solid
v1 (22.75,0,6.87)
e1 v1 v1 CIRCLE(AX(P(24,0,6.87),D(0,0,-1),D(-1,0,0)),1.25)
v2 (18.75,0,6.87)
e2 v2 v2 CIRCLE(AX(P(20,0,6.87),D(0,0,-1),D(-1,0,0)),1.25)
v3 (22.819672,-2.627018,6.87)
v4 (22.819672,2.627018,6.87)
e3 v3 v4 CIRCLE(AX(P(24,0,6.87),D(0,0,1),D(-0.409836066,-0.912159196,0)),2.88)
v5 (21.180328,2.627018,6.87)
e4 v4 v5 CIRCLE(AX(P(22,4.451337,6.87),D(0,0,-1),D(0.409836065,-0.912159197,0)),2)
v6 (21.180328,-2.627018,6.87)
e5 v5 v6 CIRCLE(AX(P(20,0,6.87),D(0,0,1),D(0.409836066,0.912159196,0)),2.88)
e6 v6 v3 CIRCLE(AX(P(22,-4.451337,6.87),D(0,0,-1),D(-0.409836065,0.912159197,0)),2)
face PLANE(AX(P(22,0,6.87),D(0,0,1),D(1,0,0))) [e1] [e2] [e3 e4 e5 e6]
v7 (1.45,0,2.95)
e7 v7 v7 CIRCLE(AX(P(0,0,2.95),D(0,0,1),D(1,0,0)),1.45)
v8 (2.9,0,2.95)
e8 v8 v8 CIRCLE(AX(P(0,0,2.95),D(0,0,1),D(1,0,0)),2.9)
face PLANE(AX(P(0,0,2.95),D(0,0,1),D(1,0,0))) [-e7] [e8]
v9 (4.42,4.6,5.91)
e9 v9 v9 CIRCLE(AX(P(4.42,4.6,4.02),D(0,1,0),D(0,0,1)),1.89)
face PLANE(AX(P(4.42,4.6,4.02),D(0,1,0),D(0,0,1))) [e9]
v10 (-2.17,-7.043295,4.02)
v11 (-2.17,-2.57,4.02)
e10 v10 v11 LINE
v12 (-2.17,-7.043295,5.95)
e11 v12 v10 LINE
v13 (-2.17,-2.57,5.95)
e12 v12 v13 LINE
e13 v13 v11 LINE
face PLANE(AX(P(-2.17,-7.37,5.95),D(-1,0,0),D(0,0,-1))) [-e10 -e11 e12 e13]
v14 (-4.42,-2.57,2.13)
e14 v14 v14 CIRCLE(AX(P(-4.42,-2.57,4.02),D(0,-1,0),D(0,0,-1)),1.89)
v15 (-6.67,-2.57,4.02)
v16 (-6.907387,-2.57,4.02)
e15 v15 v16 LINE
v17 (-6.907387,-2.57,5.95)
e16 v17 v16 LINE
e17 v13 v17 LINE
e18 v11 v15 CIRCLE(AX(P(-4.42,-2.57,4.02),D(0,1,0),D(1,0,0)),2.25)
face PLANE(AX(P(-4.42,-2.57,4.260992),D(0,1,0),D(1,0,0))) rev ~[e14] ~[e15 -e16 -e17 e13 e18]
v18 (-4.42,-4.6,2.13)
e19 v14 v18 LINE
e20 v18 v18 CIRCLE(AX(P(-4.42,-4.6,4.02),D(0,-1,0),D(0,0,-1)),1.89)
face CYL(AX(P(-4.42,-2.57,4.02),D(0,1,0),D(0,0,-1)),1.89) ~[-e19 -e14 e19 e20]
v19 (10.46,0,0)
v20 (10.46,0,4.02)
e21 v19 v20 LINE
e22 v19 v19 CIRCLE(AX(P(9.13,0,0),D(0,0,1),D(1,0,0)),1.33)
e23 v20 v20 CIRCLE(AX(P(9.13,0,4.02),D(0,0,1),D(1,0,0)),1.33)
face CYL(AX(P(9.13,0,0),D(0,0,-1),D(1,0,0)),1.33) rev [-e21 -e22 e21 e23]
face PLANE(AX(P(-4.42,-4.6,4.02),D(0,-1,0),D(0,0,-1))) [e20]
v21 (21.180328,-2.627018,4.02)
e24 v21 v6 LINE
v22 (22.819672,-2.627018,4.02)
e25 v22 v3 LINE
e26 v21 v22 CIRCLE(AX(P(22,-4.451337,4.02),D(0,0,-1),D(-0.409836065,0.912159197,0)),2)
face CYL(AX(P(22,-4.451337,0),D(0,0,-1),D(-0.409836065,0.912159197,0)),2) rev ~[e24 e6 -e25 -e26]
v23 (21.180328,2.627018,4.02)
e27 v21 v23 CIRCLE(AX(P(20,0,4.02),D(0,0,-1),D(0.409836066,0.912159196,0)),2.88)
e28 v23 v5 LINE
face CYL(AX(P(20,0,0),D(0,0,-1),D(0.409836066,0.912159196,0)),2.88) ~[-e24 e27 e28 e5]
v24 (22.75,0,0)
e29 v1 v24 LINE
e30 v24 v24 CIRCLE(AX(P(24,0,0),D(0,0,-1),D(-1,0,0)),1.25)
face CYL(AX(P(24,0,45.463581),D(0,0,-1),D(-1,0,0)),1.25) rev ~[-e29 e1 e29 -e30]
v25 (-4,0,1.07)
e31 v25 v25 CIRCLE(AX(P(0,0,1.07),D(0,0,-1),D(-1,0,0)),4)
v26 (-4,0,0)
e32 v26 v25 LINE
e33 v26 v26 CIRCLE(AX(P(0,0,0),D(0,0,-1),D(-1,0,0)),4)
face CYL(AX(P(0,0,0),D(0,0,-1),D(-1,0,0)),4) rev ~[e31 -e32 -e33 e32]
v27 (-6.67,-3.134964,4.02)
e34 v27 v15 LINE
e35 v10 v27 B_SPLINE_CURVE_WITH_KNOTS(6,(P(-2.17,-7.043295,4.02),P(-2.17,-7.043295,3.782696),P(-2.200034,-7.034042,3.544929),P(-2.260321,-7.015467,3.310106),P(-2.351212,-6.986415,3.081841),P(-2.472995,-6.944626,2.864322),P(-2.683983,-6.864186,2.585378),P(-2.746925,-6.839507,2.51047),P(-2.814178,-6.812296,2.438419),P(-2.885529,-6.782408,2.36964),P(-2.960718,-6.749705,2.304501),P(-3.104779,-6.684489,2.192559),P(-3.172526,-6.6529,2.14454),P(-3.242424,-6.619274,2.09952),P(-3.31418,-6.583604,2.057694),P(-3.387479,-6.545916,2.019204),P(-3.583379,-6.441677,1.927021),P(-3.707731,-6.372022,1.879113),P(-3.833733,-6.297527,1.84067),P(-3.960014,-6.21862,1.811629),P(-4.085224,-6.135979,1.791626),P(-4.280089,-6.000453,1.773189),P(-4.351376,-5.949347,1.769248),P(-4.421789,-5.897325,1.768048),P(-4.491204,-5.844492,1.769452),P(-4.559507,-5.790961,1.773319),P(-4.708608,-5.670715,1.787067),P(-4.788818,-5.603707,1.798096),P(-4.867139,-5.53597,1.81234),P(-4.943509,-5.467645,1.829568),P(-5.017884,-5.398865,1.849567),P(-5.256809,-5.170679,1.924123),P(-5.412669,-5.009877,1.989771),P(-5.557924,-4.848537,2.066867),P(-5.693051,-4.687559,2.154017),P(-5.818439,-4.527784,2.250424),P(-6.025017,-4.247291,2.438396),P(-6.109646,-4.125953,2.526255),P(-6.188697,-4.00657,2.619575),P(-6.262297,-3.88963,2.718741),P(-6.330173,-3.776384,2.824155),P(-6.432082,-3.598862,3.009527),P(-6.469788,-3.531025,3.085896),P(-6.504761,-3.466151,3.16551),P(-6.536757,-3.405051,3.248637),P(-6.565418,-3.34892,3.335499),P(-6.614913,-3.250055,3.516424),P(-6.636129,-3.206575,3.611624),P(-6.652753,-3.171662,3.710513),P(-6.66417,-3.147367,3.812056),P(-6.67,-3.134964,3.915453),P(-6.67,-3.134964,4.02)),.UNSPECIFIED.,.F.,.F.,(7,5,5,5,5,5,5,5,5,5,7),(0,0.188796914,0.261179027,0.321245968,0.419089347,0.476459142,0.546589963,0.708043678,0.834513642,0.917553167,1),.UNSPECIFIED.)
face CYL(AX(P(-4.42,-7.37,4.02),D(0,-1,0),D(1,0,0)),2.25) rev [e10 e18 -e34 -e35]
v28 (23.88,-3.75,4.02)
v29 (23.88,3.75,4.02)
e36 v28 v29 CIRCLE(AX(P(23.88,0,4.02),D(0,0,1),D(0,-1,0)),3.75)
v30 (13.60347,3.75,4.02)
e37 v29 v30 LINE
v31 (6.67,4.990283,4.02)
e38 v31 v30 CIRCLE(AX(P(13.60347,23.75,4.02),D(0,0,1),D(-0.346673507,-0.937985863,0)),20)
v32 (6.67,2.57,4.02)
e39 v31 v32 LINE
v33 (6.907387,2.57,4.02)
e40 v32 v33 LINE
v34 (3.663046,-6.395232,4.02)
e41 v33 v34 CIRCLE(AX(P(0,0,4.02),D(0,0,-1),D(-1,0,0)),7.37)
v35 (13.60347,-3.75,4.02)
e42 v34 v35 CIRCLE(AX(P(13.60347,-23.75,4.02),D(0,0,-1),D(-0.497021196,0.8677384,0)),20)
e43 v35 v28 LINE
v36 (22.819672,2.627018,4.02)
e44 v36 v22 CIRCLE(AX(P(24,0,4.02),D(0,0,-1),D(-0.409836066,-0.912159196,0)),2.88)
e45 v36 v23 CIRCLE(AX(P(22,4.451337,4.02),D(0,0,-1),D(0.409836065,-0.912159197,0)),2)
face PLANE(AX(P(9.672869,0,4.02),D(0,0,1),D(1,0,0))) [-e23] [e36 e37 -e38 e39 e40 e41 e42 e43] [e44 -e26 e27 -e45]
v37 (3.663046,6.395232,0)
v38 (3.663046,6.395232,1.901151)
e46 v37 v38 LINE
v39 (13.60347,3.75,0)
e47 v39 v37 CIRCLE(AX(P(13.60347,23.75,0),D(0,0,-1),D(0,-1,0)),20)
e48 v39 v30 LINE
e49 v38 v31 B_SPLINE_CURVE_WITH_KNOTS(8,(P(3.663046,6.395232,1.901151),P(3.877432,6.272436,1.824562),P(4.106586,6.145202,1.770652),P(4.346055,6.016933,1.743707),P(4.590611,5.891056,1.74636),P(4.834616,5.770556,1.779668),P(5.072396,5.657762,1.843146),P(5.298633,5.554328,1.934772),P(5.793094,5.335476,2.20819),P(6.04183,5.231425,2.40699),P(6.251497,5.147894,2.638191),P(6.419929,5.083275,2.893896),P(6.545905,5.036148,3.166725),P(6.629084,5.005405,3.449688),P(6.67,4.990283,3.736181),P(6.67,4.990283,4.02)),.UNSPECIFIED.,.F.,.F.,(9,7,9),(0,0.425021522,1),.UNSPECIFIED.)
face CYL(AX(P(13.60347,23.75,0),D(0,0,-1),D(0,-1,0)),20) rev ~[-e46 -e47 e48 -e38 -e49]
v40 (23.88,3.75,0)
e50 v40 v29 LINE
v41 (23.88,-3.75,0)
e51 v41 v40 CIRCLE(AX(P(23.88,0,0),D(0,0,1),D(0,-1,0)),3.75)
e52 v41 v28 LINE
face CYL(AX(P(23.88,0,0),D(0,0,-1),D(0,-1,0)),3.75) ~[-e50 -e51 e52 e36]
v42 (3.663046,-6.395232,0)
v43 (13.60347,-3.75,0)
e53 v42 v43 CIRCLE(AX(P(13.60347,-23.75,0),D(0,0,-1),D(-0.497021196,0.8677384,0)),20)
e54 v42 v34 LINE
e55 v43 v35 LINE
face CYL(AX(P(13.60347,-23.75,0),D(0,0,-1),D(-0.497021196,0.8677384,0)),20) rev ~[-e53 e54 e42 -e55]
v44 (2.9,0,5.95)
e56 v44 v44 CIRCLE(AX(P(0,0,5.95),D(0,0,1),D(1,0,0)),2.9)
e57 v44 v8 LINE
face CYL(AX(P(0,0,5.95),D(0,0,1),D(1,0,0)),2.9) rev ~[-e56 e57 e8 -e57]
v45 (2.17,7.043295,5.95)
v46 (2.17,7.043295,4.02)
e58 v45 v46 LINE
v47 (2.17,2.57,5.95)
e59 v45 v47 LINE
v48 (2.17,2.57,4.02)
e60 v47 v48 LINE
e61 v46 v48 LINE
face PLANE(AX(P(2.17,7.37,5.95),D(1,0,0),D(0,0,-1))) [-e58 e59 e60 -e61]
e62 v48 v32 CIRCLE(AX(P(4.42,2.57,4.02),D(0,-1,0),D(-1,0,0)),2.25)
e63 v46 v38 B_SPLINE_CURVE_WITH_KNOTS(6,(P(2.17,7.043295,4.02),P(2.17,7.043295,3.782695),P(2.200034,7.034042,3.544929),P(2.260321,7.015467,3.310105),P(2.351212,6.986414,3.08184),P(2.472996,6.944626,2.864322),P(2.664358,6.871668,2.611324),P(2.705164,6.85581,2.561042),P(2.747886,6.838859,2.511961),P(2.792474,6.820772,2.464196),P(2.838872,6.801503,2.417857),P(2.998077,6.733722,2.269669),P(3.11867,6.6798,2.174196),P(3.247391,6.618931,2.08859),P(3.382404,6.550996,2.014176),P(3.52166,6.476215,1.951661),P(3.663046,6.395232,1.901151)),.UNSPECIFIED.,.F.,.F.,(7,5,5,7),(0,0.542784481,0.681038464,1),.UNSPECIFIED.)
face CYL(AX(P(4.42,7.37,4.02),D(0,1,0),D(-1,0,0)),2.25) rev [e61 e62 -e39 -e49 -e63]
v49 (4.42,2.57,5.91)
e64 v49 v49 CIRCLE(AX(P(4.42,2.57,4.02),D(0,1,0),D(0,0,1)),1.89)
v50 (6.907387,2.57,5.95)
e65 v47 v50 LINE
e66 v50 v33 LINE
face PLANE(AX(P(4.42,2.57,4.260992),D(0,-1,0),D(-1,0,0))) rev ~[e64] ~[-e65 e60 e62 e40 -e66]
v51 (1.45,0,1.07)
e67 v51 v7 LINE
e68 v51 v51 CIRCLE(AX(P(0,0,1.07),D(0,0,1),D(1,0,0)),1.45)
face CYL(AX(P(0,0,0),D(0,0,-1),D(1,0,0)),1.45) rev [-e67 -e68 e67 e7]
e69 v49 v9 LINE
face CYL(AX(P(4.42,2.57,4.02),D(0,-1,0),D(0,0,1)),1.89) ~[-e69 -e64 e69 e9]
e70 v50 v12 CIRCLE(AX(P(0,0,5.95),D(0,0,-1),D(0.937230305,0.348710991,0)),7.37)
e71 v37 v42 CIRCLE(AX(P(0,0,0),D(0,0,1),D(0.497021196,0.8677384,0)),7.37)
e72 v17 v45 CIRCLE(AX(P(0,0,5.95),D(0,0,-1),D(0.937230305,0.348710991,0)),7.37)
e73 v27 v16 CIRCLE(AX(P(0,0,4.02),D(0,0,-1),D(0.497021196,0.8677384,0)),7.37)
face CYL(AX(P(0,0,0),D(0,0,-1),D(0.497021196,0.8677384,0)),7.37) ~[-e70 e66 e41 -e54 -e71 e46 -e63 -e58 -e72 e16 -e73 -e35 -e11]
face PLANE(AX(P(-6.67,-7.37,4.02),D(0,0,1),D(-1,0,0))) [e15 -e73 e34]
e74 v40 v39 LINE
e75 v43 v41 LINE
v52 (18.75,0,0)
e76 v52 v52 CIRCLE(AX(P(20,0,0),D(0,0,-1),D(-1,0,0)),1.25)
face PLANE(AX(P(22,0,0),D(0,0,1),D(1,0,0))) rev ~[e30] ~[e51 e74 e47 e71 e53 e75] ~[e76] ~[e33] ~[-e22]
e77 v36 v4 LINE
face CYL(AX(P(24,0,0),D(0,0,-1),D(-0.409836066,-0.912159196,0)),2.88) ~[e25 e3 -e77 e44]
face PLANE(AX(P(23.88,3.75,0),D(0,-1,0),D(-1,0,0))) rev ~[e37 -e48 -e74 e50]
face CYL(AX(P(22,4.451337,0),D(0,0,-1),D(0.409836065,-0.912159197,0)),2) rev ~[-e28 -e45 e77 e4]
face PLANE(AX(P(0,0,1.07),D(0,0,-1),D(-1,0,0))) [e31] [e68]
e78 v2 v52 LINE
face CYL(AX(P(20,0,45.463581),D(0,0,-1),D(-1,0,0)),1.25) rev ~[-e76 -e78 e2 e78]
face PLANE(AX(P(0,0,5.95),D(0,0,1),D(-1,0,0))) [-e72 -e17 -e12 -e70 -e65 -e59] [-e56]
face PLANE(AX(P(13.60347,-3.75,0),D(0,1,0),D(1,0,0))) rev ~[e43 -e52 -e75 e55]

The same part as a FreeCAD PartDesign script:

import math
import FreeCAD as App
import Part
import Sketcher

V = App.Vector
Q = App.Units.Quantity

doc = App.newDocument("Part")
body = doc.addObject("PartDesign::Body", "Body")

# Sketch on XY plane
sketch1 = body.newObject("Sketcher::SketchObject", "Sketch")
sketch1.AttachmentSupport = (doc.getObject("XY_Plane"), [""])
sketch1.MapMode = "FlatFace"
sketch1.addGeometry(Part.LineSegment(V(13.60347, -3.75, 0), V(23.88, -3.75, 0)), False)
sketch1.addGeometry(Part.ArcOfCircle(Part.Circle(V(23.88, 0, 0), V(0, 0, 1), 3.75), math.radians(-90), math.radians(90)), False)
sketch1.addGeometry(Part.LineSegment(V(23.88, 3.75, 0), V(13.60347, 3.75, 0)), False)
sketch1.addGeometry(Part.ArcOfCircle(Part.Circle(V(13.60347, 23.75, 0), V(0, 0, 1), 20), math.radians(-119.803119), math.radians(-90)), False)
sketch1.addGeometry(Part.ArcOfCircle(Part.Circle(V(0, 0, 0), V(0, 0, 1), 7.37), math.radians(60.196881), math.radians(299.803119)), False)
sketch1.addGeometry(Part.ArcOfCircle(Part.Circle(V(13.60347, -23.75, 0), V(0, 0, 1), 20), math.radians(90), math.radians(119.803119)), False)
sketch1.addGeometry(Part.Circle(V(0, 0, 0), V(0, 0, 1), 1.45), False)
sketch1.addGeometry(Part.Circle(V(9.13, 0, 0), V(0, 0, 1), 1.33), False)
sketch1.addConstraint(Sketcher.Constraint("Tangent", 0, 2, 1, 1))
sketch1.addConstraint(Sketcher.Constraint("Tangent", 1, 2, 2, 1))
sketch1.addConstraint(Sketcher.Constraint("Tangent", 2, 2, 3, 2))
sketch1.addConstraint(Sketcher.Constraint("Tangent", 3, 1, 4, 1))
sketch1.addConstraint(Sketcher.Constraint("Tangent", 4, 2, 5, 2))
sketch1.addConstraint(Sketcher.Constraint("Tangent", 5, 1, 0, 1))
sketch1.addConstraint(Sketcher.Constraint("Horizontal", 0))
sketch1.addConstraint(Sketcher.Constraint("Horizontal", 2))
sketch1.addConstraint(Sketcher.Constraint("Coincident", 4, 3, -1, 1))
sketch1.addConstraint(Sketcher.Constraint("Coincident", 6, 3, -1, 1))
sketch1.addConstraint(Sketcher.Constraint("Equal", 3, 5))
sketch1.addConstraint(Sketcher.Constraint("PointOnObject", 1, 3, -1))
sketch1.addConstraint(Sketcher.Constraint("PointOnObject", 7, 3, -1))
sketch1.addConstraint(Sketcher.Constraint("Radius", 3, Q("20 mm")))
sketch1.addConstraint(Sketcher.Constraint("Diameter", 6, Q("2.9 mm")))
sketch1.addConstraint(Sketcher.Constraint("Diameter", 7, Q("2.66 mm")))
sketch1.addConstraint(Sketcher.Constraint("Radius", 1, Q("3.75 mm")))
sketch1.addConstraint(Sketcher.Constraint("Radius", 4, Q("7.37 mm")))
sketch1.addConstraint(Sketcher.Constraint("DistanceX", -1, 1, 1, 3, Q("23.88 mm")))
sketch1.addConstraint(Sketcher.Constraint("DistanceX", -1, 1, 7, 3, Q("9.13 mm")))
pad1 = body.newObject("PartDesign::Pad", "Pad")
pad1.Profile = sketch1
pad1.Length = 4.02

# Sketch on XY plane
sketch2 = body.newObject("Sketcher::SketchObject", "Sketch001")
sketch2.AttachmentSupport = (doc.getObject("XY_Plane"), [""])
sketch2.MapMode = "FlatFace"
sketch2.addGeometry(Part.Circle(V(0, 0, 0), V(0, 0, 1), 7.37), False)
sketch2.addGeometry(Part.Circle(V(0, 0, 0), V(0, 0, 1), 1.45), False)
sketch2.addConstraint(Sketcher.Constraint("Coincident", 0, 3, -1, 1))
sketch2.addConstraint(Sketcher.Constraint("Coincident", 1, 3, -1, 1))
sketch2.addConstraint(Sketcher.Constraint("Diameter", 1, Q("2.9 mm")))
sketch2.addConstraint(Sketcher.Constraint("Diameter", 0, Q("14.74 mm")))
pad2 = body.newObject("PartDesign::Pad", "Pad001")
pad2.Profile = sketch2
pad2.Length = 5.95

# Sketch on XY plane
sketch3 = body.newObject("Sketcher::SketchObject", "Sketch002")
sketch3.AttachmentSupport = (doc.getObject("XY_Plane"), [""])
sketch3.MapMode = "FlatFace"
sketch3.addGeometry(Part.ArcOfCircle(Part.Circle(V(24, 0, 0), V(0, 0, 1), 2.88), math.radians(-114.194537), math.radians(114.194537)), False)
sketch3.addGeometry(Part.ArcOfCircle(Part.Circle(V(22, 4.451337, 0), V(0, 0, 1), 2), math.radians(-114.194537), math.radians(-65.805463)), False)
sketch3.addGeometry(Part.ArcOfCircle(Part.Circle(V(20, 0, 0), V(0, 0, 1), 2.88), math.radians(65.805463), math.radians(294.194537)), False)
sketch3.addGeometry(Part.ArcOfCircle(Part.Circle(V(22, -4.451337, 0), V(0, 0, 1), 2), math.radians(65.805463), math.radians(114.194537)), False)
sketch3.addConstraint(Sketcher.Constraint("Tangent", 0, 2, 1, 2))
sketch3.addConstraint(Sketcher.Constraint("Tangent", 1, 1, 2, 1))
sketch3.addConstraint(Sketcher.Constraint("Tangent", 2, 2, 3, 2))
sketch3.addConstraint(Sketcher.Constraint("Tangent", 3, 1, 0, 1))
sketch3.addConstraint(Sketcher.Constraint("Equal", 0, 2))
sketch3.addConstraint(Sketcher.Constraint("Equal", 1, 3))
sketch3.addConstraint(Sketcher.Constraint("Symmetric", 1, 3, 3, 3, -1))
sketch3.addConstraint(Sketcher.Constraint("Radius", 1, Q("2 mm")))
sketch3.addConstraint(Sketcher.Constraint("Radius", 0, Q("2.88 mm")))
sketch3.addConstraint(Sketcher.Constraint("DistanceX", -1, 1, 0, 3, Q("24 mm")))
sketch3.addConstraint(Sketcher.Constraint("DistanceX", -1, 1, 1, 3, Q("22 mm")))
pad3 = body.newObject("PartDesign::Pad", "Pad002")
pad3.Profile = sketch3
pad3.Length = 6.87

# Sketch on XY plane
sketch4 = body.newObject("Sketcher::SketchObject", "Sketch003")
sketch4.AttachmentSupport = (doc.getObject("XY_Plane"), [""])
sketch4.MapMode = "FlatFace"
sketch4.AttachmentOffset = App.Placement(V(0, 0, 6.87), App.Rotation())
sketch4.addGeometry(Part.Circle(V(24, 0, 0), V(0, 0, 1), 1.25), False)
sketch4.addGeometry(Part.Circle(V(20, 0, 0), V(0, 0, 1), 1.25), False)
sketch4.addConstraint(Sketcher.Constraint("Equal", 0, 1))
sketch4.addConstraint(Sketcher.Constraint("PointOnObject", 0, 3, -1))
sketch4.addConstraint(Sketcher.Constraint("PointOnObject", 1, 3, -1))
sketch4.addConstraint(Sketcher.Constraint("Diameter", 0, Q("2.5 mm")))
sketch4.addConstraint(Sketcher.Constraint("DistanceX", -1, 1, 0, 3, Q("24 mm")))
sketch4.addConstraint(Sketcher.Constraint("DistanceX", -1, 1, 1, 3, Q("20 mm")))
doc.recompute()
hole = body.newObject("PartDesign::Hole", "Hole")
hole.Profile = sketch4
hole.ThreadType = "None"
hole.Diameter = 2.5
hole.DepthType = "ThroughAll"

# Sketch on XY plane
sketch5 = body.newObject("Sketcher::SketchObject", "Sketch004")
sketch5.AttachmentSupport = (doc.getObject("XY_Plane"), [""])
sketch5.MapMode = "FlatFace"
sketch5.addGeometry(Part.Circle(V(0, 0, 0), V(0, 0, 1), 4), False)
sketch5.addConstraint(Sketcher.Constraint("Coincident", 0, 3, -1, 1))
sketch5.addConstraint(Sketcher.Constraint("Diameter", 0, Q("8 mm")))
pocket1 = body.newObject("PartDesign::Pocket", "Pocket")
pocket1.Profile = sketch5
pocket1.Length = 1.07
pocket1.Reversed = True

# Sketch on XY plane
sketch6 = body.newObject("Sketcher::SketchObject", "Sketch005")
sketch6.AttachmentSupport = (doc.getObject("XY_Plane"), [""])
sketch6.MapMode = "FlatFace"
sketch6.AttachmentOffset = App.Placement(V(0, 0, 5.95), App.Rotation())
sketch6.addGeometry(Part.Circle(V(0, 0, 0), V(0, 0, 1), 2.9), False)
sketch6.addConstraint(Sketcher.Constraint("Coincident", 0, 3, -1, 1))
sketch6.addConstraint(Sketcher.Constraint("Diameter", 0, Q("5.8 mm")))
pocket2 = body.newObject("PartDesign::Pocket", "Pocket001")
pocket2.Profile = sketch6
pocket2.Length = 3

# Sketch on XZ plane
sketch7 = body.newObject("Sketcher::SketchObject", "Sketch006")
sketch7.AttachmentSupport = (doc.getObject("XZ_Plane"), [""])
sketch7.MapMode = "FlatFace"
sketch7.AttachmentOffset = App.Placement(V(0, 0, -7.37), App.Rotation())
sketch7.addGeometry(Part.ArcOfCircle(Part.Circle(V(4.42, 4.02, 0), V(0, 0, 1), 2.25), math.radians(180), math.radians(360)), False)
sketch7.addGeometry(Part.LineSegment(V(2.17, 4.02, 0), V(2.17, 5.95, 0)), False)
sketch7.addGeometry(Part.LineSegment(V(2.17, 5.95, 0), V(7.37, 5.95, 0)), False)
sketch7.addGeometry(Part.LineSegment(V(7.37, 5.95, 0), V(7.37, 4.02, 0)), False)
sketch7.addGeometry(Part.LineSegment(V(7.37, 4.02, 0), V(6.67, 4.02, 0)), False)
sketch7.addConstraint(Sketcher.Constraint("Tangent", 0, 1, 1, 1))
sketch7.addConstraint(Sketcher.Constraint("Coincident", 1, 2, 2, 1))
sketch7.addConstraint(Sketcher.Constraint("Coincident", 2, 2, 3, 1))
sketch7.addConstraint(Sketcher.Constraint("Coincident", 3, 2, 4, 1))
sketch7.addConstraint(Sketcher.Constraint("Coincident", 4, 2, 0, 2))
sketch7.addConstraint(Sketcher.Constraint("Vertical", 1))
sketch7.addConstraint(Sketcher.Constraint("Horizontal", 2))
sketch7.addConstraint(Sketcher.Constraint("Vertical", 3))
sketch7.addConstraint(Sketcher.Constraint("Horizontal", 4))
sketch7.addConstraint(Sketcher.Constraint("Horizontal", 0, 1, 3, 2))
sketch7.addConstraint(Sketcher.Constraint("Radius", 0, Q("2.25 mm")))
sketch7.addConstraint(Sketcher.Constraint("DistanceX", 2, 1, 2, 2, Q("5.2 mm")))
sketch7.addConstraint(Sketcher.Constraint("DistanceY", 1, 1, 1, 2, Q("1.93 mm")))
sketch7.addConstraint(Sketcher.Constraint("DistanceX", -1, 1, 0, 3, Q("4.42 mm")))
sketch7.addConstraint(Sketcher.Constraint("DistanceY", -1, 1, 0, 3, Q("4.02 mm")))
pocket3 = body.newObject("PartDesign::Pocket", "Pocket002")
pocket3.Profile = sketch7
pocket3.Length = 4.8
pocket3.Reversed = True

# Sketch on XZ plane
sketch8 = body.newObject("Sketcher::SketchObject", "Sketch007")
sketch8.AttachmentSupport = (doc.getObject("XZ_Plane"), [""])
sketch8.MapMode = "FlatFace"
sketch8.AttachmentOffset = App.Placement(V(0, 0, 7.37), App.Rotation())
sketch8.addGeometry(Part.ArcOfCircle(Part.Circle(V(-4.42, 4.02, 0), V(0, 0, 1), 2.25), math.radians(180), math.radians(360)), False)
sketch8.addGeometry(Part.LineSegment(V(-2.17, 4.02, 0), V(-2.17, 5.95, 0)), False)
sketch8.addGeometry(Part.LineSegment(V(-2.17, 5.95, 0), V(-7.37, 5.95, 0)), False)
sketch8.addGeometry(Part.LineSegment(V(-7.37, 5.95, 0), V(-7.37, 4.02, 0)), False)
sketch8.addGeometry(Part.LineSegment(V(-7.37, 4.02, 0), V(-6.67, 4.02, 0)), False)
sketch8.addConstraint(Sketcher.Constraint("Tangent", 0, 2, 1, 1))
sketch8.addConstraint(Sketcher.Constraint("Coincident", 1, 2, 2, 1))
sketch8.addConstraint(Sketcher.Constraint("Coincident", 2, 2, 3, 1))
sketch8.addConstraint(Sketcher.Constraint("Coincident", 3, 2, 4, 1))
sketch8.addConstraint(Sketcher.Constraint("Coincident", 4, 2, 0, 1))
sketch8.addConstraint(Sketcher.Constraint("Vertical", 1))
sketch8.addConstraint(Sketcher.Constraint("Horizontal", 2))
sketch8.addConstraint(Sketcher.Constraint("Vertical", 3))
sketch8.addConstraint(Sketcher.Constraint("Horizontal", 4))
sketch8.addConstraint(Sketcher.Constraint("Horizontal", 0, 2, 3, 2))
sketch8.addConstraint(Sketcher.Constraint("Radius", 0, Q("2.25 mm")))
sketch8.addConstraint(Sketcher.Constraint("DistanceX", 2, 2, 2, 1, Q("5.2 mm")))
sketch8.addConstraint(Sketcher.Constraint("DistanceY", 1, 1, 1, 2, Q("1.93 mm")))
sketch8.addConstraint(Sketcher.Constraint("DistanceX", 0, 3, -1, 1, Q("4.42 mm")))
sketch8.addConstraint(Sketcher.Constraint("DistanceY", -1, 1, 0, 3, Q("4.02 mm")))
pocket4 = body.newObject("PartDesign::Pocket", "Pocket003")
pocket4.Profile = sketch8
pocket4.Length = 4.8

# Sketch on XZ plane
sketch9 = body.newObject("Sketcher::SketchObject", "Sketch008")
sketch9.AttachmentSupport = (doc.getObject("XZ_Plane"), [""])
sketch9.MapMode = "FlatFace"
sketch9.AttachmentOffset = App.Placement(V(0, 0, -2.57), App.Rotation())
sketch9.addGeometry(Part.Circle(V(4.42, 4.02, 0), V(0, 0, 1), 1.89), False)
sketch9.addConstraint(Sketcher.Constraint("Diameter", 0, Q("3.78 mm")))
sketch9.addConstraint(Sketcher.Constraint("DistanceX", -1, 1, 0, 3, Q("4.42 mm")))
sketch9.addConstraint(Sketcher.Constraint("DistanceY", -1, 1, 0, 3, Q("4.02 mm")))
pad4 = body.newObject("PartDesign::Pad", "Pad003")
pad4.Profile = sketch9
pad4.Length = 2.03
pad4.Reversed = True

# Sketch on XZ plane
sketch10 = body.newObject("Sketcher::SketchObject", "Sketch009")
sketch10.AttachmentSupport = (doc.getObject("XZ_Plane"), [""])
sketch10.MapMode = "FlatFace"
sketch10.AttachmentOffset = App.Placement(V(0, 0, 2.57), App.Rotation())
sketch10.addGeometry(Part.Circle(V(-4.42, 4.02, 0), V(0, 0, 1), 1.89), False)
sketch10.addConstraint(Sketcher.Constraint("Diameter", 0, Q("3.78 mm")))
sketch10.addConstraint(Sketcher.Constraint("DistanceX", 0, 3, -1, 1, Q("4.42 mm")))
sketch10.addConstraint(Sketcher.Constraint("DistanceY", -1, 1, 0, 3, Q("4.02 mm")))
pad5 = body.newObject("PartDesign::Pad", "Pad004")
pad5.Profile = sketch10
pad5.Length = 2.03

doc.recompute()
